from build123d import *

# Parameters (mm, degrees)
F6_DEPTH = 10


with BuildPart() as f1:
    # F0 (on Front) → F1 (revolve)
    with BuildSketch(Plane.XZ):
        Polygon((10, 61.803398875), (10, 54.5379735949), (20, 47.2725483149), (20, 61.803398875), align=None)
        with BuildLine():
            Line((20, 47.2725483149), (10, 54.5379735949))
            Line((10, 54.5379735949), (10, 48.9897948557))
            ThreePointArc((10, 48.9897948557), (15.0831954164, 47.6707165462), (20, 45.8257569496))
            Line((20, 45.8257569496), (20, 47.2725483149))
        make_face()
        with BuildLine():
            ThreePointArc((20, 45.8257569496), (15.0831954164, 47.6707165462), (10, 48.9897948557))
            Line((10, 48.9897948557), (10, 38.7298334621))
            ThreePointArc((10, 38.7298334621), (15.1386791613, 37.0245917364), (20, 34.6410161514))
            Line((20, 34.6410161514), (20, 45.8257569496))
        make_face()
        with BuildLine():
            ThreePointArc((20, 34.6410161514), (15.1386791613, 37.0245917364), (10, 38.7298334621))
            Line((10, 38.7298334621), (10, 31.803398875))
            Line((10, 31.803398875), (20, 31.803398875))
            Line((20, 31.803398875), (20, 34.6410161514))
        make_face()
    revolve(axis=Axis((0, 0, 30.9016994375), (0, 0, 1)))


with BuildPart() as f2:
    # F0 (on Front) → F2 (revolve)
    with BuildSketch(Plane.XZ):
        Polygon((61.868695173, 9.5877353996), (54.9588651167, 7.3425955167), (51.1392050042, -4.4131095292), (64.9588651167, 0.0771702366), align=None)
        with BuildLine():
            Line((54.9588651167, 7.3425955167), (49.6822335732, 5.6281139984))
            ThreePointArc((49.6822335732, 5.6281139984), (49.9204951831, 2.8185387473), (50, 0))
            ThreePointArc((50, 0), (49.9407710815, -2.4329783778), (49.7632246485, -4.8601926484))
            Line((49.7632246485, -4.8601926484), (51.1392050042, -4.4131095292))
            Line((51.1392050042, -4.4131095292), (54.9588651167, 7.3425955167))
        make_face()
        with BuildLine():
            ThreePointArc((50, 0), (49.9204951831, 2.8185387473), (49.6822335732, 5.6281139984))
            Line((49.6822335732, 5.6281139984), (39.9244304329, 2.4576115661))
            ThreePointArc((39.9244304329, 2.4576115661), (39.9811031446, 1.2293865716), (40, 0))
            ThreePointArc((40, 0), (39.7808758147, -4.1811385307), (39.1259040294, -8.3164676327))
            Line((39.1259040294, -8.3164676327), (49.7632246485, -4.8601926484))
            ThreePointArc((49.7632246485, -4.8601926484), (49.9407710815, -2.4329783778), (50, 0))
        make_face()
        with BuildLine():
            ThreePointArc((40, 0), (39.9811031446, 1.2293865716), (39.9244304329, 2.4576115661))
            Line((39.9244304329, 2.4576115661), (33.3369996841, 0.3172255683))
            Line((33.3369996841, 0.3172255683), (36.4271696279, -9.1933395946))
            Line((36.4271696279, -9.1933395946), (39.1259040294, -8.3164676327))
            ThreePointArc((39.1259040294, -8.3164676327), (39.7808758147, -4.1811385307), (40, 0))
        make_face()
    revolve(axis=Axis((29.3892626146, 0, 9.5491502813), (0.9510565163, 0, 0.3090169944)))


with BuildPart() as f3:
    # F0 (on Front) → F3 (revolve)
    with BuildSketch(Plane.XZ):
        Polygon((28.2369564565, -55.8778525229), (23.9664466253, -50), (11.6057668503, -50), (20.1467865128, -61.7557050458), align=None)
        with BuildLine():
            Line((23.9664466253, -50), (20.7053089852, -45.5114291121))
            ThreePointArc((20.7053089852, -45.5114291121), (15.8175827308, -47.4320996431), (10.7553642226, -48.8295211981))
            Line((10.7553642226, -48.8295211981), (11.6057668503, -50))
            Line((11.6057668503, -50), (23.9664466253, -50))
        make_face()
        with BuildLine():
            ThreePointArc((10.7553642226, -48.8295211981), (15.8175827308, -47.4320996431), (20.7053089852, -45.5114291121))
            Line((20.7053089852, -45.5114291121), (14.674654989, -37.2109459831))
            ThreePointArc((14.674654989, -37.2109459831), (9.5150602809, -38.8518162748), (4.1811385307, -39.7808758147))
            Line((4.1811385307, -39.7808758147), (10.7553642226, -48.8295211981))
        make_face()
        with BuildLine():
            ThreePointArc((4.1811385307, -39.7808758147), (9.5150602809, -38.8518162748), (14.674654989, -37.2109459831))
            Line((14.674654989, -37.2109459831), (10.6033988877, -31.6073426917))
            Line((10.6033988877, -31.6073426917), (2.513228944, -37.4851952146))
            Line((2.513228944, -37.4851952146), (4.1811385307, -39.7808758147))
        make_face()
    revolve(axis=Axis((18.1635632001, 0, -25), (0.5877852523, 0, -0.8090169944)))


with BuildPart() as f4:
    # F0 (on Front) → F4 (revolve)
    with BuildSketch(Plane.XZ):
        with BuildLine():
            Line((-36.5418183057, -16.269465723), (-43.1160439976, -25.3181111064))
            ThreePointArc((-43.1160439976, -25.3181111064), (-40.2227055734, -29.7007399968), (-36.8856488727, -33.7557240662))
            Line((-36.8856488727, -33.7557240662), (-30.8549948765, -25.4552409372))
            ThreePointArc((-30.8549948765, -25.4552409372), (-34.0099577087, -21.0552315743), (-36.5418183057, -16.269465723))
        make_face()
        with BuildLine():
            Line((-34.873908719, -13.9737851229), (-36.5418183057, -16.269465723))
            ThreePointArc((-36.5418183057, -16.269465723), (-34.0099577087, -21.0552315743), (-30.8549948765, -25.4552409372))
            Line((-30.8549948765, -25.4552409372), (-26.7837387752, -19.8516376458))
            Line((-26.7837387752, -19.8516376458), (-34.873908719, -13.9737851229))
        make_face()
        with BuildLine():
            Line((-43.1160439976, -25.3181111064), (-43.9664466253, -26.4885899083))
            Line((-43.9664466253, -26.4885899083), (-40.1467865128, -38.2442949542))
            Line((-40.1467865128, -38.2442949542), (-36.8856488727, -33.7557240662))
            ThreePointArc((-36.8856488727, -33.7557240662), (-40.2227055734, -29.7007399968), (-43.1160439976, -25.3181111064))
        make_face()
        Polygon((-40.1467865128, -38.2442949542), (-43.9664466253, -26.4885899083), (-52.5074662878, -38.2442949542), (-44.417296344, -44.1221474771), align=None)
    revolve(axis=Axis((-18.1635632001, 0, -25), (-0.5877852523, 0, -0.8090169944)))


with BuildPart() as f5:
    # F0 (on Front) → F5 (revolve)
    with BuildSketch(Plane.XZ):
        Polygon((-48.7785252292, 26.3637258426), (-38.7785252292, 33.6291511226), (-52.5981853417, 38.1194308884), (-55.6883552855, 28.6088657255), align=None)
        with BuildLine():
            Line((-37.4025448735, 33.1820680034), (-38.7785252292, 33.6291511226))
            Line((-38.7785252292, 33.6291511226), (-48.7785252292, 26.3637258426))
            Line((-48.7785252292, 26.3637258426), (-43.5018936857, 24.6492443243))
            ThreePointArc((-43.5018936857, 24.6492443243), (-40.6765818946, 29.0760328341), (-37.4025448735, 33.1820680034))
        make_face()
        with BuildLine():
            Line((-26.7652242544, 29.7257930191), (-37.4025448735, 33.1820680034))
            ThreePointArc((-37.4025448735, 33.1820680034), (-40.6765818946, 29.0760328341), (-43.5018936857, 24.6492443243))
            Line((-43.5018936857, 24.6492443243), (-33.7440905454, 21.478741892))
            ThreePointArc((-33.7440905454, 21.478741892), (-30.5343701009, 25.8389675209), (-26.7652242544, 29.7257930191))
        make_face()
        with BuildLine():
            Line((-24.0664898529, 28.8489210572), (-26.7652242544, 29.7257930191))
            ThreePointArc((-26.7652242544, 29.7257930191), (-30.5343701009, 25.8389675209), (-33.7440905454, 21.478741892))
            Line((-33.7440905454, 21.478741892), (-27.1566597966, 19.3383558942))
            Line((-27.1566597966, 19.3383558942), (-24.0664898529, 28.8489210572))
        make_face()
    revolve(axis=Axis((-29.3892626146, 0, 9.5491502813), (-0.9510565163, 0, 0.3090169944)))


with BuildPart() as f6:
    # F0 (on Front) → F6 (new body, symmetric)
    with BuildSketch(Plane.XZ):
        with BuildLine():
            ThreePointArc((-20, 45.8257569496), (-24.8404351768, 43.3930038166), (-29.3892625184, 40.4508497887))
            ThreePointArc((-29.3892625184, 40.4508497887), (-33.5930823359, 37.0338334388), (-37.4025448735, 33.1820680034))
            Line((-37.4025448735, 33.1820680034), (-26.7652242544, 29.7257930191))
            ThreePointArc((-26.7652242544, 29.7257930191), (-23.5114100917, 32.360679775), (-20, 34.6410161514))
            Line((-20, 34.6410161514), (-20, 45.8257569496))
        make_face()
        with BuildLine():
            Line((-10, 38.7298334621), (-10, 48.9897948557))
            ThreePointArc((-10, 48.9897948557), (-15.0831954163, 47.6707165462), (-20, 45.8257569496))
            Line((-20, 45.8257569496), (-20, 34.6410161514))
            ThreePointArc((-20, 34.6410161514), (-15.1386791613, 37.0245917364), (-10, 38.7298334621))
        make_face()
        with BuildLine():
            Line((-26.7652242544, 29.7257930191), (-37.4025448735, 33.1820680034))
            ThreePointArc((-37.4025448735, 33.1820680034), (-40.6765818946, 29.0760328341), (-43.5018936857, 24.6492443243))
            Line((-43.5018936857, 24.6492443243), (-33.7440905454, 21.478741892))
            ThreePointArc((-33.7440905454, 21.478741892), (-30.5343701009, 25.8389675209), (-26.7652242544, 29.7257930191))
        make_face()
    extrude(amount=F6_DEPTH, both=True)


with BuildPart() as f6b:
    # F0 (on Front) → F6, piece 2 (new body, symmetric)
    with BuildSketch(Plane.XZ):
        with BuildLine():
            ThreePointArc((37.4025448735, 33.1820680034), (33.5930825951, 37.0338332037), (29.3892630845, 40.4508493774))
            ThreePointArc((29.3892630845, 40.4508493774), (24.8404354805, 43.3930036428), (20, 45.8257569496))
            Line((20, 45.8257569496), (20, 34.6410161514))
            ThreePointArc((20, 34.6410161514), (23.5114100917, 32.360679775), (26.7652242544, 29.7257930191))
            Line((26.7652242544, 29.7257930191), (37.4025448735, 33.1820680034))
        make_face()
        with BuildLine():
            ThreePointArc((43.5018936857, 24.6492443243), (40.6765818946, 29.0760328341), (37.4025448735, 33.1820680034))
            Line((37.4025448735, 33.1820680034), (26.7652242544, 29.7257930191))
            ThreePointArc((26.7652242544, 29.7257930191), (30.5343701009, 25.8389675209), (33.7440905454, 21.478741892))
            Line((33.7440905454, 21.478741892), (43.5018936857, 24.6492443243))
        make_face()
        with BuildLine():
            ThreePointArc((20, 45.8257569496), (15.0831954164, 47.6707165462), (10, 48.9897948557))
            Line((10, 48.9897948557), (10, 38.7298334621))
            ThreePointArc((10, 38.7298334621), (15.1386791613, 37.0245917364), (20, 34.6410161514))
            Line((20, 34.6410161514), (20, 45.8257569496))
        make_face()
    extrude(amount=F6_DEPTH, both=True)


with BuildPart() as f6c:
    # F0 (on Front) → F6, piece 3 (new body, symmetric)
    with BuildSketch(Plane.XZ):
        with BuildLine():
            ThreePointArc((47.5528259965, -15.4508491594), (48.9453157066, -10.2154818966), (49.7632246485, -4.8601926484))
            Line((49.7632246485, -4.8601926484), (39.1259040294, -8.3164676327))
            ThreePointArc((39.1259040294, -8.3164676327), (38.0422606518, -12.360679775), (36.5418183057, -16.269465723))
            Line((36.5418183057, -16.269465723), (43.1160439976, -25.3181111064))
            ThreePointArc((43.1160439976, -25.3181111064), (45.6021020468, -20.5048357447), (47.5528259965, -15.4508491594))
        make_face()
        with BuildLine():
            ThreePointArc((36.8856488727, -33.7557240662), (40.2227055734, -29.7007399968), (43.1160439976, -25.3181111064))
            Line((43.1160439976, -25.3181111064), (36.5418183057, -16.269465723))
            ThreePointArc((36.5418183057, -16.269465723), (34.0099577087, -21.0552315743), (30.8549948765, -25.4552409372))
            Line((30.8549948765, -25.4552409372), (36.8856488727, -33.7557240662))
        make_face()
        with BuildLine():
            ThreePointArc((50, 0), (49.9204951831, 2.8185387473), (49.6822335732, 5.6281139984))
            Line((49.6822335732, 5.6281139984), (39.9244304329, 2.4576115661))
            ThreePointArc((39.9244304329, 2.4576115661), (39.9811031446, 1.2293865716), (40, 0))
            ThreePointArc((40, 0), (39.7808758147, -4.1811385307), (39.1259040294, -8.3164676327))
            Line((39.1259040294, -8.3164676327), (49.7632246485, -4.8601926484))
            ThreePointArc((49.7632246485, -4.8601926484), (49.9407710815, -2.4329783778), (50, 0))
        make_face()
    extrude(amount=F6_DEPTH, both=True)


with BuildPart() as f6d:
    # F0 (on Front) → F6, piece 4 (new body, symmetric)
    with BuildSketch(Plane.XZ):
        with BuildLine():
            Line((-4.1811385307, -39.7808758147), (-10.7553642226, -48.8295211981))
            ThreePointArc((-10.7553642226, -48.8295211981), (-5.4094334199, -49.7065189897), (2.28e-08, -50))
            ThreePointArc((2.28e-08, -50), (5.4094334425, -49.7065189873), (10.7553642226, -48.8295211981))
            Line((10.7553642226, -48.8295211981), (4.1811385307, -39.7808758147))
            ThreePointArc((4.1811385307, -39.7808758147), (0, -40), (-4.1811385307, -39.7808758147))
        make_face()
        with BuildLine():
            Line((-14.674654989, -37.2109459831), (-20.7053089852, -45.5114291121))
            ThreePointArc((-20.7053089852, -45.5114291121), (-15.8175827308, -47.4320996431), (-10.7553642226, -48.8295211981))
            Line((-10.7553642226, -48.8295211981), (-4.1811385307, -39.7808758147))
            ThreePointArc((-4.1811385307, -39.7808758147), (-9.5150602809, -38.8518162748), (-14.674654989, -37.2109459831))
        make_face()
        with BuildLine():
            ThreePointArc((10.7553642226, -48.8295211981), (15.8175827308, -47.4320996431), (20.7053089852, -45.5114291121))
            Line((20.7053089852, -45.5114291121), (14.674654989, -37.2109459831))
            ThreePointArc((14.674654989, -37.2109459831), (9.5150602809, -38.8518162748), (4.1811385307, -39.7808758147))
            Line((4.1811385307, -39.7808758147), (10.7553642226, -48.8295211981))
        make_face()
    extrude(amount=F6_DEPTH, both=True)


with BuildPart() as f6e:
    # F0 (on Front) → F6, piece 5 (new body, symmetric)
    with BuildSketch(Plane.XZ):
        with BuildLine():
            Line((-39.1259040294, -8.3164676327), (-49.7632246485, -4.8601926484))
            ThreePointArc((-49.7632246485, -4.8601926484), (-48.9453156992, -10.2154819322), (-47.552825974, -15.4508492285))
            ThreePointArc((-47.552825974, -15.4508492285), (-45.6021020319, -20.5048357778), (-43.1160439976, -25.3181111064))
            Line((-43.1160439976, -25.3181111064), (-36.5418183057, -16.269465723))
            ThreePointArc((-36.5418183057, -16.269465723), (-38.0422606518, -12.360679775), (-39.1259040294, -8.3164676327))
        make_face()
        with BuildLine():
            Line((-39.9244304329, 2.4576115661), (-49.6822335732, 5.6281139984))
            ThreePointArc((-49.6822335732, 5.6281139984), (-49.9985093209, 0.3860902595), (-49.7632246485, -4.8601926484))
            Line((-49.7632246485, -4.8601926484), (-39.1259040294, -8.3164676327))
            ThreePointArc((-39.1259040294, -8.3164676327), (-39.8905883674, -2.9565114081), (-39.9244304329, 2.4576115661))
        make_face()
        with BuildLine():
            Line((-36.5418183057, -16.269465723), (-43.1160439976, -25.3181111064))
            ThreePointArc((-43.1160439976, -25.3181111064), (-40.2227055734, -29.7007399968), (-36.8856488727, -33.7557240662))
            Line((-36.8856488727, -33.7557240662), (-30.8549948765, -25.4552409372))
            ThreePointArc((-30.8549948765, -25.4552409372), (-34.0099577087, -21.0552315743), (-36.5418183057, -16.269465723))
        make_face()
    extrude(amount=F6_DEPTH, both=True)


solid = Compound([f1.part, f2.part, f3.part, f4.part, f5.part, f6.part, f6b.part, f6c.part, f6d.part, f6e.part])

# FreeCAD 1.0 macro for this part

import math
import FreeCAD as App
import Part
import Sketcher
Q = App.Units.Quantity


def add_polygon(sketch, points):
    """Adds a closed chain of lines whose ends are joined by coincident constraints."""
    first, n = sketch.GeometryCount, len(points)
    for a, b in zip(points, points[1:] + points[:1]):
        sketch.addGeometry(Part.LineSegment(App.Vector(*a, 0), App.Vector(*b, 0)), False)
    for i in range(n):
        sketch.addConstraint(Sketcher.Constraint("Coincident", first + i, 2, first + (i + 1) % n, 1))

doc = App.newDocument("Part")
params = doc.addObject("Spreadsheet::Sheet", "Params")
for row, (alias, value) in enumerate([
    ("sketch1_width", "10 mm"),
    ("sketch1_height", "30 mm"),
    ("revolution_angle", "360 deg"),
    ("sketch2_length", "10 mm"),
    ("sketch2_length2", "30 mm"),
    ("revolution2_angle", "360 deg"),
    ("sketch3_length", "10 mm"),
    ("sketch3_length2", "30 mm"),
    ("revolution3_angle", "360 deg"),
    ("sketch4_length", "10 mm"),
    ("sketch4_length2", "30 mm"),
    ("revolution4_angle", "360 deg"),
    ("sketch5_length", "10 mm"),
    ("sketch5_length2", "30 mm"),
    ("revolution5_angle", "360 deg"),
    ("sketch6_radius", "50 mm"),
    ("sketch6_radius2", "40 mm"),
    ("pad1_length", "20 mm"),
    ("sketch7_radius", "50 mm"),
    ("sketch7_radius2", "40 mm"),
    ("pad2_length", "20 mm"),
    ("sketch8_radius", "50 mm"),
    ("sketch8_radius2", "40 mm"),
    ("pad3_length", "20 mm"),
    ("sketch9_radius", "50 mm"),
    ("sketch9_radius2", "40 mm"),
    ("pad4_length", "20 mm"),
    ("sketch10_radius", "50 mm"),
    ("sketch10_radius2", "40 mm"),
    ("pad5_length", "20 mm"),
], start=1):
    params.set(f"A{row}", alias)
    params.set(f"B{row}", "=" + value)
    params.setAlias(f"B{row}", alias)

body = doc.addObject("PartDesign::Body", "Body")

# Sketch on XZ plane
sketch1 = body.newObject("Sketcher::SketchObject", "Sketch")
sketch1.AttachmentSupport = (doc.getObject("XZ_Plane"), [""])
sketch1.MapMode = "FlatFace"
add_polygon(sketch1, [(10, 61.803399), (10, 31.803399), (20, 31.803399), (20, 61.803399)])  # lines 0-3
sketch1.addConstraint(Sketcher.Constraint("Vertical", 0))
sketch1.addConstraint(Sketcher.Constraint("Horizontal", 1))
sketch1.addConstraint(Sketcher.Constraint("Vertical", 2))
sketch1.addConstraint(Sketcher.Constraint("Horizontal", 3))
sketch1.addConstraint(Sketcher.Constraint("DistanceX", 1, 1, 1, 2, Q("10 mm")))
sketch1.addConstraint(Sketcher.Constraint("DistanceY", 0, 2, 0, 1, Q("30 mm")))
sketch1.addConstraint(Sketcher.Constraint("DistanceX", -1, 1, 0, 2, Q("10 mm")))
sketch1.addConstraint(Sketcher.Constraint("DistanceY", -1, 1, 0, 2, Q("31.803399 mm")))
sketch1.setExpression("Constraints[8]", "Params.sketch1_width")
sketch1.setExpression("Constraints[9]", "Params.sketch1_height")
revolution = body.newObject("PartDesign::Revolution", "Revolution")
revolution.Profile = sketch1
revolution.ReferenceAxis = (sketch1, ["V_Axis"])
revolution.setExpression("Angle", "Params.revolution_angle")
body2 = doc.addObject("PartDesign::Body", "Body001")

# Sketch on XZ plane
sketch2 = body2.newObject("Sketcher::SketchObject", "Sketch001")
sketch2.AttachmentSupport = (doc.getObject("XZ_Plane001"), [""])
sketch2.MapMode = "FlatFace"
add_polygon(sketch2, [(61.868695, 9.587735), (54.958865, 7.342596), (49.682234, 5.628114), (39.92443, 2.457612), (33.337, 0.317226), (36.42717, -9.19334), (39.125904, -8.316468), (49.763225, -4.860193), (51.139205, -4.41311), (64.958865, 0.07717)])  # lines 0-9
sketch2.addGeometry(Part.LineSegment(App.Vector(30.24683, 9.827791, 0), App.Vector(58.778525, 19.098301, 0)), True)  # axis
sketch2.addConstraint(Sketcher.Constraint("Parallel", 0, 1))
sketch2.addConstraint(Sketcher.Constraint("Parallel", 1, 2))
sketch2.addConstraint(Sketcher.Constraint("Parallel", 2, 3))
sketch2.addConstraint(Sketcher.Constraint("Perpendicular", 3, 4))
sketch2.addConstraint(Sketcher.Constraint("Perpendicular", 4, 5))
sketch2.addConstraint(Sketcher.Constraint("Parallel", 5, 6))
sketch2.addConstraint(Sketcher.Constraint("Parallel", 6, 7))
sketch2.addConstraint(Sketcher.Constraint("Parallel", 7, 8))
sketch2.addConstraint(Sketcher.Constraint("Perpendicular", 8, 9))
sketch2.addConstraint(Sketcher.Constraint("Perpendicular", 9, 10))
sketch2.addConstraint(Sketcher.Constraint("Angle", 0, Q("-162 deg")))
sketch2.addConstraint(Sketcher.Constraint("Distance", 4, Q("10 mm")))
sketch2.addConstraint(Sketcher.Constraint("Distance", 10, Q("30 mm")))
sketch2.addConstraint(Sketcher.Constraint("DistanceX", 0, 2, 8, 2, Q("10 mm")))
sketch2.addConstraint(Sketcher.Constraint("DistanceX", -1, 1, 3, 2, Q("33.337 mm")))
sketch2.addConstraint(Sketcher.Constraint("DistanceY", -1, 1, 10, 2, Q("19.098301 mm")))
sketch2.addConstraint(Sketcher.Constraint("DistanceX", 5, 2, 7, 2, Q("12.013301 mm")))
sketch2.addConstraint(Sketcher.Constraint("DistanceX", 10, 1, 2, 2, Q("9.677601 mm")))
sketch2.addConstraint(Sketcher.Constraint("Distance", 1, Q("5.548179 mm")))
sketch2.addConstraint(Sketcher.Constraint("Distance", 2, Q("10.259961 mm")))
sketch2.addConstraint(Sketcher.Constraint("Distance", 6, Q("11.184741 mm")))
sketch2.addConstraint(Sketcher.Constraint("Distance", 8, Q("14.530851 mm")))
sketch2.addConstraint(Sketcher.Constraint("DistanceX", -1, 1, 2, 2, Q("39.92443 mm")))
sketch2.addConstraint(Sketcher.Constraint("DistanceY", -1, 1, 2, 2, Q("2.457612 mm")))
sketch2.setExpression("Constraints[21]", "Params.sketch2_length")
sketch2.setExpression("Constraints[22]", "Params.sketch2_length2")
revolution2 = body2.newObject("PartDesign::Revolution", "Revolution001")
revolution2.Profile = sketch2
revolution2.ReferenceAxis = (sketch2, ["Axis0"])
revolution2.setExpression("Angle", "Params.revolution2_angle")
body3 = doc.addObject("PartDesign::Body", "Body002")

# Sketch on XZ plane
sketch3 = body3.newObject("Sketcher::SketchObject", "Sketch002")
sketch3.AttachmentSupport = (doc.getObject("XZ_Plane002"), [""])
sketch3.MapMode = "FlatFace"
add_polygon(sketch3, [(28.236956, -55.877853), (23.966447, -50), (20.705309, -45.511429), (14.674655, -37.210946), (10.603399, -31.607343), (2.513229, -37.485195), (4.181139, -39.780876), (10.755364, -48.829521), (11.605767, -50), (20.146787, -61.755705)])  # lines 0-9
sketch3.addGeometry(Part.LineSegment(App.Vector(18.693569, -25.72949, 0), App.Vector(36.327126, -50, 0)), True)  # axis
sketch3.addConstraint(Sketcher.Constraint("Parallel", 0, 1))
sketch3.addConstraint(Sketcher.Constraint("Parallel", 1, 2))
sketch3.addConstraint(Sketcher.Constraint("Parallel", 2, 3))
sketch3.addConstraint(Sketcher.Constraint("Perpendicular", 3, 4))
sketch3.addConstraint(Sketcher.Constraint("Perpendicular", 4, 5))
sketch3.addConstraint(Sketcher.Constraint("Parallel", 5, 6))
sketch3.addConstraint(Sketcher.Constraint("Parallel", 6, 7))
sketch3.addConstraint(Sketcher.Constraint("Parallel", 7, 8))
sketch3.addConstraint(Sketcher.Constraint("Perpendicular", 8, 9))
sketch3.addConstraint(Sketcher.Constraint("Perpendicular", 9, 10))
sketch3.addConstraint(Sketcher.Constraint("Horizontal", 0, 2, 7, 2))
sketch3.addConstraint(Sketcher.Constraint("Horizontal", 7, 2, 10, 2))
sketch3.addConstraint(Sketcher.Constraint("Angle", 0, Q("126 deg")))
sketch3.addConstraint(Sketcher.Constraint("Distance", 4, Q("10 mm")))
sketch3.addConstraint(Sketcher.Constraint("Distance", 10, Q("30 mm")))
sketch3.addConstraint(Sketcher.Constraint("DistanceY", 0, 2, -1, 1, Q("50 mm")))
sketch3.addConstraint(Sketcher.Constraint("DistanceX", -1, 1, 3, 2, Q("10.603399 mm")))
sketch3.addConstraint(Sketcher.Constraint("Distance", 1, Q("5.548179 mm")))
sketch3.addConstraint(Sketcher.Constraint("Distance", 2, Q("10.259961 mm")))
sketch3.addConstraint(Sketcher.Constraint("Distance", 6, Q("11.184741 mm")))
sketch3.addConstraint(Sketcher.Constraint("Distance", 7, Q("1.446791 mm")))
sketch3.addConstraint(Sketcher.Constraint("Distance", 8, Q("14.530851 mm")))
sketch3.addConstraint(Sketcher.Constraint("DistanceX", -1, 1, 1, 2, Q("20.705309 mm")))
sketch3.addConstraint(Sketcher.Constraint("DistanceX", -1, 1, 10, 1, Q("18.693569 mm")))
sketch3.setExpression("Constraints[23]", "Params.sketch3_length")
sketch3.setExpression("Constraints[24]", "Params.sketch3_length2")
revolution3 = body3.newObject("PartDesign::Revolution", "Revolution002")
revolution3.Profile = sketch3
revolution3.ReferenceAxis = (sketch3, ["Axis0"])
revolution3.setExpression("Angle", "Params.revolution3_angle")
body4 = doc.addObject("PartDesign::Body", "Body003")

# Sketch on XZ plane
sketch4 = body4.newObject("Sketcher::SketchObject", "Sketch003")
sketch4.AttachmentSupport = (doc.getObject("XZ_Plane003"), [""])
sketch4.MapMode = "FlatFace"
add_polygon(sketch4, [(-36.541818, -16.269466), (-43.116044, -25.318111), (-43.966447, -26.48859), (-52.507466, -38.244295), (-44.417296, -44.122147), (-40.146787, -38.244295), (-30.854995, -25.455241), (-26.783739, -19.851638), (-34.873909, -13.973785)])  # lines 0-8
sketch4.addGeometry(Part.LineSegment(App.Vector(-18.693569, -25.72949, 0), App.Vector(-36.327126, -50, 0)), True)  # axis
sketch4.addConstraint(Sketcher.Constraint("Parallel", 0, 1))
sketch4.addConstraint(Sketcher.Constraint("Parallel", 1, 2))
sketch4.addConstraint(Sketcher.Constraint("Perpendicular", 2, 3))
sketch4.addConstraint(Sketcher.Constraint("Perpendicular", 3, 4))
sketch4.addConstraint(Sketcher.Constraint("Parallel", 4, 5))
sketch4.addConstraint(Sketcher.Constraint("Parallel", 5, 6))
sketch4.addConstraint(Sketcher.Constraint("Perpendicular", 6, 7))
sketch4.addConstraint(Sketcher.Constraint("Perpendicular", 7, 8))
sketch4.addConstraint(Sketcher.Constraint("Parallel", 8, 9))
sketch4.addConstraint(Sketcher.Constraint("Horizontal", 2, 2, 4, 2))
sketch4.addConstraint(Sketcher.Constraint("Angle", 0, Q("-126 deg")))
sketch4.addConstraint(Sketcher.Constraint("Distance", 3, Q("10 mm")))
sketch4.addConstraint(Sketcher.Constraint("Distance", 9, Q("30 mm")))
sketch4.addConstraint(Sketcher.Constraint("DistanceY", 9, 2, -1, 1, Q("50 mm")))
sketch4.addConstraint(Sketcher.Constraint("DistanceX", 3, 2, 5, 2, Q("13.562301 mm")))
sketch4.addConstraint(Sketcher.Constraint("Distance", 0, Q("11.184741 mm")))
sketch4.addConstraint(Sketcher.Constraint("Distance", 1, Q("1.446791 mm")))
sketch4.addConstraint(Sketcher.Constraint("Distance", 2, Q("14.530851 mm")))
sketch4.addConstraint(Sketcher.Constraint("DistanceY", 0, 2, -1, 1, Q("25.318111 mm")))
sketch4.addConstraint(Sketcher.Constraint("DistanceX", 6, 2, -1, 1, Q("26.783739 mm")))
sketch4.addConstraint(Sketcher.Constraint("DistanceX", 8, 2, -1, 1, Q("36.541818 mm")))
sketch4.addConstraint(Sketcher.Constraint("DistanceX", 9, 1, -1, 1, Q("18.693569 mm")))
sketch4.setExpression("Constraints[20]", "Params.sketch4_length")
sketch4.setExpression("Constraints[21]", "Params.sketch4_length2")
revolution4 = body4.newObject("PartDesign::Revolution", "Revolution003")
revolution4.Profile = sketch4
revolution4.ReferenceAxis = (sketch4, ["Axis0"])
revolution4.setExpression("Angle", "Params.revolution4_angle")
body5 = doc.addObject("PartDesign::Body", "Body004")

# Sketch on XZ plane
sketch5 = body5.newObject("Sketcher::SketchObject", "Sketch004")
sketch5.AttachmentSupport = (doc.getObject("XZ_Plane004"), [""])
sketch5.MapMode = "FlatFace"
add_polygon(sketch5, [(-38.778525, 33.629151), (-52.598185, 38.119431), (-55.688355, 28.608866), (-48.778525, 26.363726), (-43.501894, 24.649244), (-33.744091, 21.478742), (-27.15666, 19.338356), (-24.06649, 28.848921), (-26.765224, 29.725793), (-37.402545, 33.182068)])  # lines 0-9
sketch5.addGeometry(Part.LineSegment(App.Vector(-30.24683, 9.827791, 0), App.Vector(-58.778525, 19.098301, 0)), True)  # axis
sketch5.addConstraint(Sketcher.Constraint("Perpendicular", 0, 1))
sketch5.addConstraint(Sketcher.Constraint("Perpendicular", 1, 2))
sketch5.addConstraint(Sketcher.Constraint("Parallel", 2, 3))
sketch5.addConstraint(Sketcher.Constraint("Parallel", 3, 4))
sketch5.addConstraint(Sketcher.Constraint("Parallel", 4, 5))
sketch5.addConstraint(Sketcher.Constraint("Perpendicular", 5, 6))
sketch5.addConstraint(Sketcher.Constraint("Perpendicular", 6, 7))
sketch5.addConstraint(Sketcher.Constraint("Parallel", 7, 8))
sketch5.addConstraint(Sketcher.Constraint("Parallel", 8, 9))
sketch5.addConstraint(Sketcher.Constraint("Parallel", 9, 10))
sketch5.addConstraint(Sketcher.Constraint("Angle", 0, Q("162 deg")))
sketch5.addConstraint(Sketcher.Constraint("Distance", 1, Q("10 mm")))
sketch5.addConstraint(Sketcher.Constraint("Distance", 10, Q("30 mm")))
sketch5.addConstraint(Sketcher.Constraint("DistanceX", 2, 2, 9, 2, Q("10 mm")))
sketch5.addConstraint(Sketcher.Constraint("DistanceX", 10, 2, 2, 2, Q("10 mm")))
sketch5.addConstraint(Sketcher.Constraint("DistanceY", -1, 1, 10, 2, Q("19.098301 mm")))
sketch5.addConstraint(Sketcher.Constraint("DistanceX", 4, 2, 6, 2, Q("9.677601 mm")))
sketch5.addConstraint(Sketcher.Constraint("DistanceX", 2, 2, 7, 2, Q("22.013301 mm")))
sketch5.addConstraint(Sketcher.Constraint("Distance", 0, Q("14.530851 mm")))
sketch5.addConstraint(Sketcher.Constraint("Distance", 3, Q("5.548179 mm")))
sketch5.addConstraint(Sketcher.Constraint("Distance", 4, Q("10.259961 mm")))
sketch5.addConstraint(Sketcher.Constraint("Distance", 8, Q("11.184741 mm")))
sketch5.addConstraint(Sketcher.Constraint("DistanceY", -1, 1, 0, 2, Q("38.119431 mm")))
sketch5.addConstraint(Sketcher.Constraint("DistanceX", 4, 2, -1, 1, Q("33.744091 mm")))
sketch5.setExpression("Constraints[21]", "Params.sketch5_length")
sketch5.setExpression("Constraints[22]", "Params.sketch5_length2")
revolution5 = body5.newObject("PartDesign::Revolution", "Revolution004")
revolution5.Profile = sketch5
revolution5.ReferenceAxis = (sketch5, ["Axis0"])
revolution5.setExpression("Angle", "Params.revolution5_angle")
body6 = doc.addObject("PartDesign::Body", "Body005")

# Sketch on XZ plane
sketch6 = body6.newObject("Sketcher::SketchObject", "Sketch005")
sketch6.AttachmentSupport = (doc.getObject("XZ_Plane005"), [""])
sketch6.MapMode = "FlatFace"
sketch6.addGeometry(Part.ArcOfCircle(Part.Circle(App.Vector(0, 0, 0), App.Vector(0, 0, 1), 50), math.radians(113.578178), math.radians(126)), False)
sketch6.addGeometry(Part.ArcOfCircle(Part.Circle(App.Vector(0, 0, 0), App.Vector(0, 0, 1), 50), math.radians(126), math.radians(138.421822)), False)
sketch6.addGeometry(Part.ArcOfCircle(Part.Circle(App.Vector(0, 0, 0), App.Vector(0, 0, 1), 50), math.radians(138.421822), math.radians(150.463041)), False)
sketch6.addGeometry(Part.LineSegment(App.Vector(-43.501894, 24.649244, 0), App.Vector(-33.744091, 21.478742, 0)), False)
sketch6.addGeometry(Part.ArcOfCircle(Part.Circle(App.Vector(0, 0, 0), App.Vector(0, 0, 1), 40), math.radians(120), math.radians(147.522488)), False)
sketch6.addGeometry(Part.ArcOfCircle(Part.Circle(App.Vector(0, 0, 0), App.Vector(0, 0, 1), 40), math.radians(104.477512), math.radians(120)), False)
sketch6.addGeometry(Part.LineSegment(App.Vector(-10, 38.729833, 0), App.Vector(-10, 48.989795, 0)), False)
sketch6.addGeometry(Part.ArcOfCircle(Part.Circle(App.Vector(0, 0, 0), App.Vector(0, 0, 1), 50), math.radians(101.536959), math.radians(113.578178)), False)
sketch6.addConstraint(Sketcher.Constraint("Tangent", 0, 2, 1, 1))
sketch6.addConstraint(Sketcher.Constraint("Tangent", 1, 2, 2, 1))
sketch6.addConstraint(Sketcher.Constraint("Coincident", 2, 2, 3, 1))
sketch6.addConstraint(Sketcher.Constraint("Coincident", 3, 2, 4, 2))
sketch6.addConstraint(Sketcher.Constraint("Tangent", 4, 1, 5, 2))
sketch6.addConstraint(Sketcher.Constraint("Coincident", 5, 1, 6, 1))
sketch6.addConstraint(Sketcher.Constraint("Coincident", 6, 2, 7, 1))
sketch6.addConstraint(Sketcher.Constraint("Tangent", 7, 2, 0, 1))
sketch6.addConstraint(Sketcher.Constraint("Vertical", 6))
sketch6.addConstraint(Sketcher.Constraint("Coincident", 0, 3, -1, 1))
sketch6.addConstraint(Sketcher.Constraint("Coincident", 2, 3, -1, 1))
sketch6.addConstraint(Sketcher.Constraint("Coincident", 4, 3, -1, 1))
sketch6.addConstraint(Sketcher.Constraint("Equal", 4, 5))
sketch6.addConstraint(Sketcher.Constraint("Equal", 2, 7))
sketch6.addConstraint(Sketcher.Constraint("Vertical", 4, 1, 7, 2))
sketch6.addConstraint(Sketcher.Constraint("Radius", 0, Q("50 mm")))
sketch6.addConstraint(Sketcher.Constraint("Radius", 4, Q("40 mm")))
sketch6.addConstraint(Sketcher.Constraint("Angle", 3, Q("-18 deg")))
sketch6.addConstraint(Sketcher.Constraint("DistanceX", 4, 1, -1, 1, Q("20 mm")))
sketch6.addConstraint(Sketcher.Constraint("DistanceX", 5, 1, -1, 1, Q("10 mm")))
sketch6.addConstraint(Sketcher.Constraint("Distance", 3, Q("10.259961 mm")))
sketch6.addConstraint(Sketcher.Constraint("DistanceY", -1, 1, 0, 2, Q("40.45085 mm")))
sketch6.addConstraint(Sketcher.Constraint("DistanceY", -1, 1, 1, 2, Q("33.182068 mm")))
sketch6.setExpression("Constraints[15]", "Params.sketch6_radius")
sketch6.setExpression("Constraints[16]", "Params.sketch6_radius2")
pad1 = body6.newObject("PartDesign::Pad", "Pad")
pad1.Profile = sketch6
pad1.setExpression("Length", "Params.pad1_length")
pad1.Midplane = True
body7 = doc.addObject("PartDesign::Body", "Body006")

# Sketch on XZ plane
sketch7 = body7.newObject("Sketcher::SketchObject", "Sketch006")
sketch7.AttachmentSupport = (doc.getObject("XZ_Plane006"), [""])
sketch7.MapMode = "FlatFace"
sketch7.addGeometry(Part.ArcOfCircle(Part.Circle(App.Vector(0, 0, 0), App.Vector(0, 0, 1), 50), math.radians(41.578178), math.radians(53.999999)), False)
sketch7.addGeometry(Part.ArcOfCircle(Part.Circle(App.Vector(0, 0, 0), App.Vector(0, 0, 1), 50), math.radians(53.999999), math.radians(66.421822)), False)
sketch7.addGeometry(Part.ArcOfCircle(Part.Circle(App.Vector(0, 0, 0), App.Vector(0, 0, 1), 50), math.radians(66.421822), math.radians(78.463041)), False)
sketch7.addGeometry(Part.LineSegment(App.Vector(10, 48.989795, 0), App.Vector(10, 38.729833, 0)), False)
sketch7.addGeometry(Part.ArcOfCircle(Part.Circle(App.Vector(0, 0, 0), App.Vector(0, 0, 1), 40), math.radians(60), math.radians(75.522488)), False)
sketch7.addGeometry(Part.ArcOfCircle(Part.Circle(App.Vector(0, 0, 0), App.Vector(0, 0, 1), 40), math.radians(32.477512), math.radians(60)), False)
sketch7.addGeometry(Part.LineSegment(App.Vector(33.744091, 21.478742, 0), App.Vector(43.501894, 24.649244, 0)), False)
sketch7.addGeometry(Part.ArcOfCircle(Part.Circle(App.Vector(0, 0, 0), App.Vector(0, 0, 1), 50), math.radians(29.536959), math.radians(41.578178)), False)
sketch7.addConstraint(Sketcher.Constraint("Tangent", 0, 2, 1, 1))
sketch7.addConstraint(Sketcher.Constraint("Tangent", 1, 2, 2, 1))
sketch7.addConstraint(Sketcher.Constraint("Coincident", 2, 2, 3, 1))
sketch7.addConstraint(Sketcher.Constraint("Coincident", 3, 2, 4, 2))
sketch7.addConstraint(Sketcher.Constraint("Tangent", 4, 1, 5, 2))
sketch7.addConstraint(Sketcher.Constraint("Coincident", 5, 1, 6, 1))
sketch7.addConstraint(Sketcher.Constraint("Coincident", 6, 2, 7, 1))
sketch7.addConstraint(Sketcher.Constraint("Tangent", 7, 2, 0, 1))
sketch7.addConstraint(Sketcher.Constraint("Vertical", 3))
sketch7.addConstraint(Sketcher.Constraint("Coincident", 0, 3, -1, 1))
sketch7.addConstraint(Sketcher.Constraint("Coincident", 2, 3, -1, 1))
sketch7.addConstraint(Sketcher.Constraint("Coincident", 4, 3, -1, 1))
sketch7.addConstraint(Sketcher.Constraint("Equal", 4, 5))
sketch7.addConstraint(Sketcher.Constraint("Equal", 2, 7))
sketch7.addConstraint(Sketcher.Constraint("Vertical", 1, 2, 4, 1))
sketch7.addConstraint(Sketcher.Constraint("Radius", 0, Q("50 mm")))
sketch7.addConstraint(Sketcher.Constraint("Radius", 4, Q("40 mm")))
sketch7.addConstraint(Sketcher.Constraint("Angle", 6, Q("18 deg")))
sketch7.addConstraint(Sketcher.Constraint("DistanceX", -1, 1, 1, 2, Q("20 mm")))
sketch7.addConstraint(Sketcher.Constraint("DistanceX", -1, 1, 2, 2, Q("10 mm")))
sketch7.addConstraint(Sketcher.Constraint("Distance", 6, Q("10.259961 mm")))
sketch7.addConstraint(Sketcher.Constraint("DistanceY", -1, 1, 0, 2, Q("40.450849 mm")))
sketch7.addConstraint(Sketcher.Constraint("DistanceY", -1, 1, 7, 2, Q("33.182068 mm")))
sketch7.setExpression("Constraints[15]", "Params.sketch7_radius")
sketch7.setExpression("Constraints[16]", "Params.sketch7_radius2")
pad2 = body7.newObject("PartDesign::Pad", "Pad001")
pad2.Profile = sketch7
pad2.setExpression("Length", "Params.pad2_length")
pad2.Midplane = True
body8 = doc.addObject("PartDesign::Body", "Body007")

# Sketch on XZ plane
sketch8 = body8.newObject("Sketcher::SketchObject", "Sketch007")
sketch8.AttachmentSupport = (doc.getObject("XZ_Plane007"), [""])
sketch8.MapMode = "FlatFace"
sketch8.addGeometry(Part.ArcOfCircle(Part.Circle(App.Vector(0, 0, 0), App.Vector(0, 0, 1), 50), math.radians(-17.999999), math.radians(-5.578178)), False)
sketch8.addGeometry(Part.ArcOfCircle(Part.Circle(App.Vector(0, 0, 0), App.Vector(0, 0, 1), 50), math.radians(-5.578178), math.radians(0)), False)
sketch8.addGeometry(Part.ArcOfCircle(Part.Circle(App.Vector(0, 0, 0), App.Vector(0, 0, 1), 50), math.radians(0), math.radians(6.463041)), False)
sketch8.addGeometry(Part.LineSegment(App.Vector(49.682234, 5.628114, 0), App.Vector(39.92443, 2.457612, 0)), False)
sketch8.addGeometry(Part.ArcOfCircle(Part.Circle(App.Vector(0, 0, 0), App.Vector(0, 0, 1), 40), math.radians(0), math.radians(3.522488)), False)
sketch8.addGeometry(Part.ArcOfCircle(Part.Circle(App.Vector(0, 0, 0), App.Vector(0, 0, 1), 40), math.radians(-12), math.radians(0)), False)
sketch8.addGeometry(Part.ArcOfCircle(Part.Circle(App.Vector(0, 0, 0), App.Vector(0, 0, 1), 40), math.radians(-24), math.radians(-12)), False)
sketch8.addGeometry(Part.ArcOfCircle(Part.Circle(App.Vector(0, 0, 0), App.Vector(0, 0, 1), 40), math.radians(-39.522488), math.radians(-24)), False)
sketch8.addGeometry(Part.LineSegment(App.Vector(30.854995, -25.455241, 0), App.Vector(36.885649, -33.755724, 0)), False)
sketch8.addGeometry(Part.ArcOfCircle(Part.Circle(App.Vector(0, 0, 0), App.Vector(0, 0, 1), 50), math.radians(-42.463041), math.radians(-30.421822)), False)
sketch8.addGeometry(Part.ArcOfCircle(Part.Circle(App.Vector(0, 0, 0), App.Vector(0, 0, 1), 50), math.radians(-30.421822), math.radians(-17.999999)), False)
sketch8.addConstraint(Sketcher.Constraint("Tangent", 0, 2, 1, 1))
sketch8.addConstraint(Sketcher.Constraint("Tangent", 1, 2, 2, 1))
sketch8.addConstraint(Sketcher.Constraint("Coincident", 2, 2, 3, 1))
sketch8.addConstraint(Sketcher.Constraint("Coincident", 3, 2, 4, 2))
sketch8.addConstraint(Sketcher.Constraint("Tangent", 4, 1, 5, 2))
sketch8.addConstraint(Sketcher.Constraint("Tangent", 5, 1, 6, 2))
sketch8.addConstraint(Sketcher.Constraint("Tangent", 6, 1, 7, 2))
sketch8.addConstraint(Sketcher.Constraint("Coincident", 7, 1, 8, 1))
sketch8.addConstraint(Sketcher.Constraint("Coincident", 8, 2, 9, 1))
sketch8.addConstraint(Sketcher.Constraint("Tangent", 9, 2, 10, 1))
sketch8.addConstraint(Sketcher.Constraint("Tangent", 10, 2, 0, 1))
sketch8.addConstraint(Sketcher.Constraint("Coincident", 0, 3, -1, 1))
sketch8.addConstraint(Sketcher.Constraint("Coincident", 2, 3, -1, 1))
sketch8.addConstraint(Sketcher.Constraint("Coincident", 4, 3, -1, 1))
sketch8.addConstraint(Sketcher.Constraint("Coincident", 6, 3, -1, 1))
sketch8.addConstraint(Sketcher.Constraint("Coincident", 9, 3, -1, 1))
sketch8.addConstraint(Sketcher.Constraint("Equal", 6, 7))
sketch8.addConstraint(Sketcher.Constraint("PointOnObject", 1, 2, -1))
sketch8.addConstraint(Sketcher.Constraint("PointOnObject", 4, 1, -1))
sketch8.addConstraint(Sketcher.Constraint("Equal", 3, 8))
sketch8.addConstraint(Sketcher.Constraint("Radius", 0, Q("50 mm")))
sketch8.addConstraint(Sketcher.Constraint("Radius", 4, Q("40 mm")))
sketch8.addConstraint(Sketcher.Constraint("Angle", 3, Q("-162 deg")))
sketch8.addConstraint(Sketcher.Constraint("Angle", 8, Q("-54 deg")))
sketch8.addConstraint(Sketcher.Constraint("DistanceY", 6, 1, 5, 1, Q("7.952998 mm")))
sketch8.addConstraint(Sketcher.Constraint("DistanceX", 10, 2, 0, 2, Q("2.210399 mm")))
sketch8.addConstraint(Sketcher.Constraint("Distance", 3, Q("10.259961 mm")))
sketch8.addConstraint(Sketcher.Constraint("DistanceX", -1, 1, 6, 1, Q("36.541818 mm")))
sketch8.addConstraint(Sketcher.Constraint("DistanceY", 9, 2, -1, 1, Q("25.318111 mm")))
sketch8.addConstraint(Sketcher.Constraint("DistanceY", 10, 2, -1, 1, Q("15.450849 mm")))
sketch8.setExpression("Constraints[20]", "Params.sketch8_radius")
sketch8.setExpression("Constraints[21]", "Params.sketch8_radius2")
pad3 = body8.newObject("PartDesign::Pad", "Pad002")
pad3.Profile = sketch8
pad3.setExpression("Length", "Params.pad3_length")
pad3.Midplane = True
body9 = doc.addObject("PartDesign::Body", "Body008")

# Sketch on XZ plane
sketch9 = body9.newObject("Sketcher::SketchObject", "Sketch008")
sketch9.AttachmentSupport = (doc.getObject("XZ_Plane008"), [""])
sketch9.MapMode = "FlatFace"
sketch9.addGeometry(Part.ArcOfCircle(Part.Circle(App.Vector(0, 0, 0), App.Vector(0, 0, 1), 50), math.radians(-102.421822), math.radians(-90)), False)
sketch9.addGeometry(Part.ArcOfCircle(Part.Circle(App.Vector(0, 0, 0), App.Vector(0, 0, 1), 50), math.radians(-90), math.radians(-77.578178)), False)
sketch9.addGeometry(Part.ArcOfCircle(Part.Circle(App.Vector(0, 0, 0), App.Vector(0, 0, 1), 50), math.radians(-77.578178), math.radians(-65.536959)), False)
sketch9.addGeometry(Part.LineSegment(App.Vector(20.705309, -45.511429, 0), App.Vector(14.674655, -37.210946, 0)), False)
sketch9.addGeometry(Part.ArcOfCircle(Part.Circle(App.Vector(0, 0, 0), App.Vector(0, 0, 1), 40), math.radians(-84), math.radians(-68.477512)), False)
sketch9.addGeometry(Part.ArcOfCircle(Part.Circle(App.Vector(0, 0, 0), App.Vector(0, 0, 1), 40), math.radians(-96), math.radians(-84)), False)
sketch9.addGeometry(Part.ArcOfCircle(Part.Circle(App.Vector(0, 0, 0), App.Vector(0, 0, 1), 40), math.radians(-111.522488), math.radians(-96)), False)
sketch9.addGeometry(Part.LineSegment(App.Vector(-14.674655, -37.210946, 0), App.Vector(-20.705309, -45.511429, 0)), False)
sketch9.addGeometry(Part.ArcOfCircle(Part.Circle(App.Vector(0, 0, 0), App.Vector(0, 0, 1), 50), math.radians(-114.463041), math.radians(-102.421822)), False)
sketch9.addConstraint(Sketcher.Constraint("Tangent", 0, 2, 1, 1))
sketch9.addConstraint(Sketcher.Constraint("Tangent", 1, 2, 2, 1))
sketch9.addConstraint(Sketcher.Constraint("Coincident", 2, 2, 3, 1))
sketch9.addConstraint(Sketcher.Constraint("Coincident", 3, 2, 4, 2))
sketch9.addConstraint(Sketcher.Constraint("Tangent", 4, 1, 5, 2))
sketch9.addConstraint(Sketcher.Constraint("Tangent", 5, 1, 6, 2))
sketch9.addConstraint(Sketcher.Constraint("Coincident", 6, 1, 7, 1))
sketch9.addConstraint(Sketcher.Constraint("Coincident", 7, 2, 8, 1))
sketch9.addConstraint(Sketcher.Constraint("Tangent", 8, 2, 0, 1))
sketch9.addConstraint(Sketcher.Constraint("Coincident", 0, 3, -1, 1))
sketch9.addConstraint(Sketcher.Constraint("Coincident", 2, 3, -1, 1))
sketch9.addConstraint(Sketcher.Constraint("Coincident", 4, 3, -1, 1))
sketch9.addConstraint(Sketcher.Constraint("Coincident", 6, 3, -1, 1))
sketch9.addConstraint(Sketcher.Constraint("Equal", 2, 8))
sketch9.addConstraint(Sketcher.Constraint("PointOnObject", 0, 2, -2))
sketch9.addConstraint(Sketcher.Constraint("Horizontal", 4, 1, 5, 1))
sketch9.addConstraint(Sketcher.Constraint("Horizontal", 3, 2, 6, 1))
sketch9.addConstraint(Sketcher.Constraint("Horizontal", 2, 2, 7, 2))
sketch9.addConstraint(Sketcher.Constraint("Horizontal", 1, 2, 8, 2))
sketch9.addConstraint(Sketcher.Constraint("Radius", 0, Q("50 mm")))
sketch9.addConstraint(Sketcher.Constraint("Radius", 4, Q("40 mm")))
sketch9.addConstraint(Sketcher.Constraint("Angle", 3, Q("126 deg")))
sketch9.addConstraint(Sketcher.Constraint("Distance", 3, Q("10.259961 mm")))
sketch9.addConstraint(Sketcher.Constraint("DistanceY", 1, 2, -1, 1, Q("48.829521 mm")))
sketch9.addConstraint(Sketcher.Constraint("DistanceX", -1, 1, 4, 1, Q("4.181139 mm")))
sketch9.setExpression("Constraints[19]", "Params.sketch9_radius")
sketch9.setExpression("Constraints[20]", "Params.sketch9_radius2")
pad4 = body9.newObject("PartDesign::Pad", "Pad003")
pad4.Profile = sketch9
pad4.setExpression("Length", "Params.pad4_length")
pad4.Midplane = True
body10 = doc.addObject("PartDesign::Body", "Body009")

# Sketch on XZ plane
sketch10 = body10.newObject("Sketcher::SketchObject", "Sketch009")
sketch10.AttachmentSupport = (doc.getObject("XZ_Plane009"), [""])
sketch10.MapMode = "FlatFace"
sketch10.addGeometry(Part.ArcOfCircle(Part.Circle(App.Vector(0, 0, 0), App.Vector(0, 0, 1), 50), math.radians(-174.421822), math.radians(-162.000001)), False)
sketch10.addGeometry(Part.ArcOfCircle(Part.Circle(App.Vector(0, 0, 0), App.Vector(0, 0, 1), 50), math.radians(-162.000001), math.radians(-149.578178)), False)
sketch10.addGeometry(Part.ArcOfCircle(Part.Circle(App.Vector(0, 0, 0), App.Vector(0, 0, 1), 50), math.radians(-149.578178), math.radians(-137.536959)), False)
sketch10.addGeometry(Part.LineSegment(App.Vector(-36.885649, -33.755724, 0), App.Vector(-30.854995, -25.455241, 0)), False)
sketch10.addGeometry(Part.ArcOfCircle(Part.Circle(App.Vector(0, 0, 0), App.Vector(0, 0, 1), 40), math.radians(-156), math.radians(-140.477512)), False)
sketch10.addGeometry(Part.ArcOfCircle(Part.Circle(App.Vector(0, 0, 0), App.Vector(0, 0, 1), 40), math.radians(-168), math.radians(-156)), False)
sketch10.addGeometry(Part.ArcOfCircle(Part.Circle(App.Vector(0, 0, 0), App.Vector(0, 0, 1), 40), math.radians(176.477512), math.radians(192)), False)
sketch10.addGeometry(Part.LineSegment(App.Vector(-39.92443, 2.457612, 0), App.Vector(-49.682234, 5.628114, 0)), False)
sketch10.addGeometry(Part.ArcOfCircle(Part.Circle(App.Vector(0, 0, 0), App.Vector(0, 0, 1), 50), math.radians(173.536959), math.radians(185.578178)), False)
sketch10.addConstraint(Sketcher.Constraint("Tangent", 0, 2, 1, 1))
sketch10.addConstraint(Sketcher.Constraint("Tangent", 1, 2, 2, 1))
sketch10.addConstraint(Sketcher.Constraint("Coincident", 2, 2, 3, 1))
sketch10.addConstraint(Sketcher.Constraint("Coincident", 3, 2, 4, 2))
sketch10.addConstraint(Sketcher.Constraint("Tangent", 4, 1, 5, 2))
sketch10.addConstraint(Sketcher.Constraint("Tangent", 5, 1, 6, 2))
sketch10.addConstraint(Sketcher.Constraint("Coincident", 6, 1, 7, 1))
sketch10.addConstraint(Sketcher.Constraint("Coincident", 7, 2, 8, 1))
sketch10.addConstraint(Sketcher.Constraint("Tangent", 8, 2, 0, 1))
sketch10.addConstraint(Sketcher.Constraint("Coincident", 0, 3, -1, 1))
sketch10.addConstraint(Sketcher.Constraint("Coincident", 2, 3, -1, 1))
sketch10.addConstraint(Sketcher.Constraint("Coincident", 4, 3, -1, 1))
sketch10.addConstraint(Sketcher.Constraint("Coincident", 6, 3, -1, 1))
sketch10.addConstraint(Sketcher.Constraint("Equal", 2, 8))
sketch10.addConstraint(Sketcher.Constraint("Equal", 3, 7))
sketch10.addConstraint(Sketcher.Constraint("Radius", 0, Q("50 mm")))
sketch10.addConstraint(Sketcher.Constraint("Radius", 4, Q("40 mm")))
sketch10.addConstraint(Sketcher.Constraint("Angle", 3, Q("54 deg")))
sketch10.addConstraint(Sketcher.Constraint("Angle", 7, Q("162 deg")))
sketch10.addConstraint(Sketcher.Constraint("DistanceY", 4, 1, 5, 1, Q("7.952998 mm")))
sketch10.addConstraint(Sketcher.Constraint("DistanceX", 8, 2, 0, 2, Q("2.210399 mm")))
sketch10.addConstraint(Sketcher.Constraint("Distance", 3, Q("10.259961 mm")))
sketch10.addConstraint(Sketcher.Constraint("DistanceY", 0, 2, -1, 1, Q("15.450849 mm")))
sketch10.addConstraint(Sketcher.Constraint("DistanceY", 1, 2, -1, 1, Q("25.318111 mm")))
sketch10.addConstraint(Sketcher.Constraint("DistanceX", 4, 1, -1, 1, Q("36.541818 mm")))
sketch10.setExpression("Constraints[15]", "Params.sketch10_radius")
sketch10.setExpression("Constraints[16]", "Params.sketch10_radius2")
pad5 = body10.newObject("PartDesign::Pad", "Pad004")
pad5.Profile = sketch10
pad5.setExpression("Length", "Params.pad5_length")
pad5.Midplane = True

doc.recompute()
